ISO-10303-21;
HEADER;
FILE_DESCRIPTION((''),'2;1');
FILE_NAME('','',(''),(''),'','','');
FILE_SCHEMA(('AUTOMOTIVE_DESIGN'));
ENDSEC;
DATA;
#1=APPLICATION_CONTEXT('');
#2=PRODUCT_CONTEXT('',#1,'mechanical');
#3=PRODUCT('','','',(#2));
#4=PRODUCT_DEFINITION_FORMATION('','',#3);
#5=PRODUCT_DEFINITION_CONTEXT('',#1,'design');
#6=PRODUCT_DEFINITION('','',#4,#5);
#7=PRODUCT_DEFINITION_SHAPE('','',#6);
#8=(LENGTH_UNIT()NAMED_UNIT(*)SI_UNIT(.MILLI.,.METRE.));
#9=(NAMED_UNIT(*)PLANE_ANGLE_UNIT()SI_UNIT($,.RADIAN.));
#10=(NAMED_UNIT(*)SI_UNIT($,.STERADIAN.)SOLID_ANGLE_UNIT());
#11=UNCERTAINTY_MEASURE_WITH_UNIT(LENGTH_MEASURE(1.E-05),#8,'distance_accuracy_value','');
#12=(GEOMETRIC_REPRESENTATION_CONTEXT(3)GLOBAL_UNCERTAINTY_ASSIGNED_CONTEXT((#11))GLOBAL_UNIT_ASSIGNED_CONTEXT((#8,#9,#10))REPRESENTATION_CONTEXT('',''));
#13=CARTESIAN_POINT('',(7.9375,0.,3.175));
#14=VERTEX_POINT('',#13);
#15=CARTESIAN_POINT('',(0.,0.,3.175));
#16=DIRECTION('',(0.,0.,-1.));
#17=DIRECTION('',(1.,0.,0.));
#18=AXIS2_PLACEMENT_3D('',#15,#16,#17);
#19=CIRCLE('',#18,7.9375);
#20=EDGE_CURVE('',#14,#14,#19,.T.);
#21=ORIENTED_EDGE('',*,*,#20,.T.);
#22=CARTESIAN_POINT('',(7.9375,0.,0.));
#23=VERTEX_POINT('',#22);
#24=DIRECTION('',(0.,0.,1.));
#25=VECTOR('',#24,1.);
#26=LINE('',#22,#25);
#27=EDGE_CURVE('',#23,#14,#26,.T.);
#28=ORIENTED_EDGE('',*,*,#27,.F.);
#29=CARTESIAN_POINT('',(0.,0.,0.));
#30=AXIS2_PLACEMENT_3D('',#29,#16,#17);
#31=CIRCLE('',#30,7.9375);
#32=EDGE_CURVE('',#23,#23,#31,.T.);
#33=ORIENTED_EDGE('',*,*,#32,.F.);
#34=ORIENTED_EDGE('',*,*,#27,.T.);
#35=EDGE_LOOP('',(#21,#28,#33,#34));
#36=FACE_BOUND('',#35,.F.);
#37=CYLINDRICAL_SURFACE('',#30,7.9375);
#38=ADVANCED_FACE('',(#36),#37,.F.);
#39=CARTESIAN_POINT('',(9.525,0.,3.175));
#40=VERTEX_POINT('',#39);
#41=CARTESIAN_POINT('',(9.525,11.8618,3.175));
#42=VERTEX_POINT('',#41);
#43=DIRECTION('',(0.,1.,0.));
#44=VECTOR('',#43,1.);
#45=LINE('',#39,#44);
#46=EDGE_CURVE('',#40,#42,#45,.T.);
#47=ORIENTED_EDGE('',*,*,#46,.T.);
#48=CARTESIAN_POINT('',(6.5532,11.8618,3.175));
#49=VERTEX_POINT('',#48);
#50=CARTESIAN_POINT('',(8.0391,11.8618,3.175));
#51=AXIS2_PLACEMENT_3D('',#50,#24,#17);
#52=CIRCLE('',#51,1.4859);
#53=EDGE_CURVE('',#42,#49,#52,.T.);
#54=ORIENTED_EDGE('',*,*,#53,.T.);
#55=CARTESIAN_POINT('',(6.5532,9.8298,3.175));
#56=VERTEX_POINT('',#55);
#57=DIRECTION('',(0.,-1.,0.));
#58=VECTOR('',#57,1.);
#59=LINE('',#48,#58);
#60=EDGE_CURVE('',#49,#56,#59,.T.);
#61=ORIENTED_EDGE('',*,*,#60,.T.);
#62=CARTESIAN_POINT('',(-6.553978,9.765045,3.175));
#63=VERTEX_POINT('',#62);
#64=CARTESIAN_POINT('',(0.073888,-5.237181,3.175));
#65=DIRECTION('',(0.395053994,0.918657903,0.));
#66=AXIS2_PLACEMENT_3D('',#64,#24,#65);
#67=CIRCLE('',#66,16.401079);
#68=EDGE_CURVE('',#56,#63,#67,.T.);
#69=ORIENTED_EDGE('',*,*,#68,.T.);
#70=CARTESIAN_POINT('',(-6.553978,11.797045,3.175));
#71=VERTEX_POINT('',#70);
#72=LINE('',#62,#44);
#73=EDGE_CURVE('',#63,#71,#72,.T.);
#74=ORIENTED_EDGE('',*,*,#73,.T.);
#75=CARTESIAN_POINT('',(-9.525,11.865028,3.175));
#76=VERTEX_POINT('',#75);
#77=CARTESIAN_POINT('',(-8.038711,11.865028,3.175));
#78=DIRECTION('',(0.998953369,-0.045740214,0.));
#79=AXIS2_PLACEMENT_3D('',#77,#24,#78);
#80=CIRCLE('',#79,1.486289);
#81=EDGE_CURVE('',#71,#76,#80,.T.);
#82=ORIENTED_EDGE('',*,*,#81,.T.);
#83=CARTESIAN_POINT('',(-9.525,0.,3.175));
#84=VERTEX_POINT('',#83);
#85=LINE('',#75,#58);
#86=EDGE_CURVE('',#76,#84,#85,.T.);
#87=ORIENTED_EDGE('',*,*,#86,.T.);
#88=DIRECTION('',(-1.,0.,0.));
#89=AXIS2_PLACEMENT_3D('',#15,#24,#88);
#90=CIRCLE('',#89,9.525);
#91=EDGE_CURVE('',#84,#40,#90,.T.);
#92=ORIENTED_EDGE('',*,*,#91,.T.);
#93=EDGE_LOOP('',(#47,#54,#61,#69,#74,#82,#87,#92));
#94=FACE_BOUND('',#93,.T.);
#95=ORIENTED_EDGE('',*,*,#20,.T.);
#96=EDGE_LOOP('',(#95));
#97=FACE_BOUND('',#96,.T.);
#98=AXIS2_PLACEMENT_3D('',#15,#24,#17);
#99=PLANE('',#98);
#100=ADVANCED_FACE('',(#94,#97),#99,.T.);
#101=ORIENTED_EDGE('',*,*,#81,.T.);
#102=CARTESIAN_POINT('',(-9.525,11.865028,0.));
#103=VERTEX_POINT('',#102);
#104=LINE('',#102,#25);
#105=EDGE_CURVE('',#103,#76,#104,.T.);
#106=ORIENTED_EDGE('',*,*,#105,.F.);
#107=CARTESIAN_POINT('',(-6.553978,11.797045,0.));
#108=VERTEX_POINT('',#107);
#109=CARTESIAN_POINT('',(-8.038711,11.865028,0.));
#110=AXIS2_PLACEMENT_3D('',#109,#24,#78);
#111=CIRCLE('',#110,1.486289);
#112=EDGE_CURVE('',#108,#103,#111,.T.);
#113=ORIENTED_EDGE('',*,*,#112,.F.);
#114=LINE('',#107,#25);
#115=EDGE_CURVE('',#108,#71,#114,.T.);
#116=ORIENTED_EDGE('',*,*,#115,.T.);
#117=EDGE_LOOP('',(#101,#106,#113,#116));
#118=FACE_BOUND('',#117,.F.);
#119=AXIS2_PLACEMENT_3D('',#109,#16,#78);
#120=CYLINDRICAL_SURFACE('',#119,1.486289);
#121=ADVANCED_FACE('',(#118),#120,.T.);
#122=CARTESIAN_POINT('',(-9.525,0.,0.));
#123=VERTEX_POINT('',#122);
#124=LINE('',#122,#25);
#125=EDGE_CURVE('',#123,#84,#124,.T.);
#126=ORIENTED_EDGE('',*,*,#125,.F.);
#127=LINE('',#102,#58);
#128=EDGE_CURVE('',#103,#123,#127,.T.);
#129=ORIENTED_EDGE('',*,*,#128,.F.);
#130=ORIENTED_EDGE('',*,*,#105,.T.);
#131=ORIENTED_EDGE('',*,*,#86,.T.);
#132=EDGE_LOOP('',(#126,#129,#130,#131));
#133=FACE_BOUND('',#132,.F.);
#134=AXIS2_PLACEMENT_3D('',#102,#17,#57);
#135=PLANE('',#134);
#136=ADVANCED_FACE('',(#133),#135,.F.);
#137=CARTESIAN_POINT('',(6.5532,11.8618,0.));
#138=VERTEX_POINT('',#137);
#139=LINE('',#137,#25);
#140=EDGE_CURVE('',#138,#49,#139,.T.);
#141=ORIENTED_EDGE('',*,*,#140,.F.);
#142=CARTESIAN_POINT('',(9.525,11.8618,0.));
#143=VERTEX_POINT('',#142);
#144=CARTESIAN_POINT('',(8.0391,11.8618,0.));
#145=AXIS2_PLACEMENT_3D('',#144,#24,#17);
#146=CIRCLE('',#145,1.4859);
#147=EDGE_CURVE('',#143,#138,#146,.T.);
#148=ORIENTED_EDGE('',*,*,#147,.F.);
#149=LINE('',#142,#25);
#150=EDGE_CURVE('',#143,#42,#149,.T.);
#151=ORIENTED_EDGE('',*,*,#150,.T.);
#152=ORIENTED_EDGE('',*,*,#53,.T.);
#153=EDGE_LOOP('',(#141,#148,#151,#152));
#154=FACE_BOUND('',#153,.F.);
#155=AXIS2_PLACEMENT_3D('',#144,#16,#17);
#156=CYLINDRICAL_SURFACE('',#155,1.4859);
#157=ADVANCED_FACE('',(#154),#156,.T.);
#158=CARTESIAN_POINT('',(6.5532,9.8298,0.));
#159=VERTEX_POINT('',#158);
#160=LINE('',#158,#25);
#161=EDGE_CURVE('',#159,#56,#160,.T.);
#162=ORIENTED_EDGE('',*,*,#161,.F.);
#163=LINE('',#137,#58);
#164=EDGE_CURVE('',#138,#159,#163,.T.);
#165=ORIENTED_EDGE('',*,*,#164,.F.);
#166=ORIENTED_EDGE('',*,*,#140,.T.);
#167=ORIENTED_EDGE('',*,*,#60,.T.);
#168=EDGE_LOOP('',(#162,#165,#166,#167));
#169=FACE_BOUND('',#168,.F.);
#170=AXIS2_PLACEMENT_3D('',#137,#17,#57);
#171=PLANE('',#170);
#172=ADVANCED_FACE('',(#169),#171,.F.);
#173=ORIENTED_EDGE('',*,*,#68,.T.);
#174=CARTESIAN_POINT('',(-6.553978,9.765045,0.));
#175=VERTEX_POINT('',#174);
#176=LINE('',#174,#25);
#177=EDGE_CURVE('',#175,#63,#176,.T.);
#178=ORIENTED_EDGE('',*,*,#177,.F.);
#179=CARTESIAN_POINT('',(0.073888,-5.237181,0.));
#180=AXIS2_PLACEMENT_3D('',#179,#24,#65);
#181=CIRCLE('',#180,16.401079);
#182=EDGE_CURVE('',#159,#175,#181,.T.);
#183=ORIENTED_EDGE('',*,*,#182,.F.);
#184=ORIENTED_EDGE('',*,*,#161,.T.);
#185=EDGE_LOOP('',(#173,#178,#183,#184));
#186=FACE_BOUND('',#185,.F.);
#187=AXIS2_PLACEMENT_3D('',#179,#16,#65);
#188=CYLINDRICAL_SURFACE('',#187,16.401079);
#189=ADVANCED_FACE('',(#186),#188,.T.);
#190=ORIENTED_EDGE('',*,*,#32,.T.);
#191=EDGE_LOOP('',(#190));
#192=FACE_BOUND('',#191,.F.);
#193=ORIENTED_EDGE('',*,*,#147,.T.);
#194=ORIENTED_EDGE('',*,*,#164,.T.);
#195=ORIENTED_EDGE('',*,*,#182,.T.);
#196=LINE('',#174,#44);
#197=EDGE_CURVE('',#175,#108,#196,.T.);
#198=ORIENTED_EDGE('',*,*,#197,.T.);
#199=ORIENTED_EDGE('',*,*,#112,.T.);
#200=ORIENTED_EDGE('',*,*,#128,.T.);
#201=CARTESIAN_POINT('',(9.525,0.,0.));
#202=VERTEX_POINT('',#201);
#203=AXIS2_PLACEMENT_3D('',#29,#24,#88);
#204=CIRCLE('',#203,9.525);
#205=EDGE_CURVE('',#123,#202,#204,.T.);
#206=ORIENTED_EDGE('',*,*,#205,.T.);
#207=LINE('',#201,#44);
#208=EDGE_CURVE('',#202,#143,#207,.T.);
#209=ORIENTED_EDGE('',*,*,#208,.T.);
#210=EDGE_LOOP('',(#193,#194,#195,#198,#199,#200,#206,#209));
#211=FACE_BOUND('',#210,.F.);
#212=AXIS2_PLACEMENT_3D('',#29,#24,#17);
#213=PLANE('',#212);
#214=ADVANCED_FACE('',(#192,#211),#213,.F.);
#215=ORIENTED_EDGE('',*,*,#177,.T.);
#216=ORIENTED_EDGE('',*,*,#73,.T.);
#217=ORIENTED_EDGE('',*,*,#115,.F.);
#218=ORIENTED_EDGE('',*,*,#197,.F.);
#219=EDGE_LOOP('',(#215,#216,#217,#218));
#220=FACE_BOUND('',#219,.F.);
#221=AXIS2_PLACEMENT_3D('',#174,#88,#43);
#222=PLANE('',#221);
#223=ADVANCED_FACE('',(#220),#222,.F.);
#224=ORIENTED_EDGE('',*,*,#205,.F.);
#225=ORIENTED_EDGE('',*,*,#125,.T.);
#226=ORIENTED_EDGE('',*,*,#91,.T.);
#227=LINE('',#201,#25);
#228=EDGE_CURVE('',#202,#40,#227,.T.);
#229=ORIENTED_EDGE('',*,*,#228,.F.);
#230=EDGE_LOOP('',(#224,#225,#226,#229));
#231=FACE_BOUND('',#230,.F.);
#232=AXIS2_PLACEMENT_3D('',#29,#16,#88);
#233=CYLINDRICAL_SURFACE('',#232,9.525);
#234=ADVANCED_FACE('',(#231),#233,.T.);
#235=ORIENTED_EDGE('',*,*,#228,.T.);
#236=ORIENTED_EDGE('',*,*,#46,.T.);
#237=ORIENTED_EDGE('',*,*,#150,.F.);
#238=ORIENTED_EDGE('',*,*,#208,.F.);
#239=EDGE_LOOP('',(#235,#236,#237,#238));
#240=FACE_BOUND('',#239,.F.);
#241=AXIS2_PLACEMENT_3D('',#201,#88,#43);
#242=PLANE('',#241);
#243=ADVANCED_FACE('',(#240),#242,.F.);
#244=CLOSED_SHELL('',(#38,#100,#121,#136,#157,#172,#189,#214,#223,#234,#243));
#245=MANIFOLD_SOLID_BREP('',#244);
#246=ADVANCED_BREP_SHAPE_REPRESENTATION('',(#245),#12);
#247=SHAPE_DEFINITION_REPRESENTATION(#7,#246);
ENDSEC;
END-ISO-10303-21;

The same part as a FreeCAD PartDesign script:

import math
import FreeCAD as App
import Part
import Sketcher
from FreeCAD import Vector
Q = App.Units.Quantity

doc = App.newDocument("Part")
body = doc.addObject("PartDesign::Body", "Body")

sketch1 = body.newObject("Sketcher::SketchObject", "Sketch")
sketch1.AttachmentSupport = (doc.getObject("XY_Plane"), [""])
sketch1.MapMode = "FlatFace"
sketch1.addGeometry([
    Part.ArcOfCircle(Part.Circle(Vector(0, 0, 0), Vector(0, 0, 1), 9.5), math.radians(180), math.radians(360)),
    Part.LineSegment(Vector(9.5, 0, 0), Vector(9.5, 11.9, 0)),
    Part.ArcOfCircle(Part.Circle(Vector(8, 11.9, 0), Vector(0, 0, 1), 1.5), math.radians(0), math.radians(180)),
    Part.LineSegment(Vector(6.6, 11.9, 0), Vector(6.6, 9.8, 0)),
    Part.ArcOfCircle(Part.Circle(Vector(0.1, -5.2, 0), Vector(0, 0, 1), 16.4), math.radians(67), math.radians(114)),
    Part.LineSegment(Vector(-6.6, 9.8, 0), Vector(-6.6, 11.8, 0)),
    Part.ArcOfCircle(Part.Circle(Vector(-8, 11.9, 0), Vector(0, 0, 1), 1.5), math.radians(-3), math.radians(180)),
    Part.LineSegment(Vector(-9.5, 11.9, 0), Vector(-9.5, 0, 0)),
    Part.Circle(Vector(0, 0, 0), Vector(0, 0, 1), 7.9),
], False)
sketch1.addConstraint([
    Sketcher.Constraint("Tangent", 0, 2, 1, 1),
    Sketcher.Constraint("Tangent", 1, 2, 2, 1),
    Sketcher.Constraint("Tangent", 2, 2, 3, 1),
    Sketcher.Constraint("Coincident", 3, 2, 4, 1),
    Sketcher.Constraint("Coincident", 4, 2, 5, 1),
    Sketcher.Constraint("Coincident", 5, 2, 6, 1),
    Sketcher.Constraint("Tangent", 6, 2, 7, 1),
    Sketcher.Constraint("Tangent", 7, 2, 0, 1),
    Sketcher.Constraint("Vertical", 1),
    Sketcher.Constraint("Vertical", 3),
    Sketcher.Constraint("Vertical", 5),
    Sketcher.Constraint("Vertical", 7),
    Sketcher.Constraint("Coincident", 0, 3, -1, 1),
    Sketcher.Constraint("Coincident", 8, 3, -1, 1),
    Sketcher.Constraint("Equal", 3, 5),
    Sketcher.Constraint("Diameter", 8, Q("0.625 in")),
    Sketcher.Constraint("Radius", 0, Q("0.375 in")),
    Sketcher.Constraint("DistanceY", 3, 2, 3, 1, Q("0.08 in")),
    Sketcher.Constraint("Radius", 2, Q("0.0585 in")),
    Sketcher.Constraint("DistanceY", 1, 1, 1, 2, Q("0.467 in")),
    Sketcher.Constraint("Radius", 4, Q("16.401079 mm")),
    Sketcher.Constraint("Radius", 6, Q("1.486289 mm")),
    Sketcher.Constraint("DistanceX", 6, 3, 4, 3, Q("8.112599 mm")),
    Sketcher.Constraint("DistanceY", 7, 2, 7, 1, Q("11.865028 mm")),
])
pad1 = body.newObject("PartDesign::Pad", "Pad")
pad1.Profile = sketch1
pad1.Length = Q("0.125 in")

doc.recompute()
